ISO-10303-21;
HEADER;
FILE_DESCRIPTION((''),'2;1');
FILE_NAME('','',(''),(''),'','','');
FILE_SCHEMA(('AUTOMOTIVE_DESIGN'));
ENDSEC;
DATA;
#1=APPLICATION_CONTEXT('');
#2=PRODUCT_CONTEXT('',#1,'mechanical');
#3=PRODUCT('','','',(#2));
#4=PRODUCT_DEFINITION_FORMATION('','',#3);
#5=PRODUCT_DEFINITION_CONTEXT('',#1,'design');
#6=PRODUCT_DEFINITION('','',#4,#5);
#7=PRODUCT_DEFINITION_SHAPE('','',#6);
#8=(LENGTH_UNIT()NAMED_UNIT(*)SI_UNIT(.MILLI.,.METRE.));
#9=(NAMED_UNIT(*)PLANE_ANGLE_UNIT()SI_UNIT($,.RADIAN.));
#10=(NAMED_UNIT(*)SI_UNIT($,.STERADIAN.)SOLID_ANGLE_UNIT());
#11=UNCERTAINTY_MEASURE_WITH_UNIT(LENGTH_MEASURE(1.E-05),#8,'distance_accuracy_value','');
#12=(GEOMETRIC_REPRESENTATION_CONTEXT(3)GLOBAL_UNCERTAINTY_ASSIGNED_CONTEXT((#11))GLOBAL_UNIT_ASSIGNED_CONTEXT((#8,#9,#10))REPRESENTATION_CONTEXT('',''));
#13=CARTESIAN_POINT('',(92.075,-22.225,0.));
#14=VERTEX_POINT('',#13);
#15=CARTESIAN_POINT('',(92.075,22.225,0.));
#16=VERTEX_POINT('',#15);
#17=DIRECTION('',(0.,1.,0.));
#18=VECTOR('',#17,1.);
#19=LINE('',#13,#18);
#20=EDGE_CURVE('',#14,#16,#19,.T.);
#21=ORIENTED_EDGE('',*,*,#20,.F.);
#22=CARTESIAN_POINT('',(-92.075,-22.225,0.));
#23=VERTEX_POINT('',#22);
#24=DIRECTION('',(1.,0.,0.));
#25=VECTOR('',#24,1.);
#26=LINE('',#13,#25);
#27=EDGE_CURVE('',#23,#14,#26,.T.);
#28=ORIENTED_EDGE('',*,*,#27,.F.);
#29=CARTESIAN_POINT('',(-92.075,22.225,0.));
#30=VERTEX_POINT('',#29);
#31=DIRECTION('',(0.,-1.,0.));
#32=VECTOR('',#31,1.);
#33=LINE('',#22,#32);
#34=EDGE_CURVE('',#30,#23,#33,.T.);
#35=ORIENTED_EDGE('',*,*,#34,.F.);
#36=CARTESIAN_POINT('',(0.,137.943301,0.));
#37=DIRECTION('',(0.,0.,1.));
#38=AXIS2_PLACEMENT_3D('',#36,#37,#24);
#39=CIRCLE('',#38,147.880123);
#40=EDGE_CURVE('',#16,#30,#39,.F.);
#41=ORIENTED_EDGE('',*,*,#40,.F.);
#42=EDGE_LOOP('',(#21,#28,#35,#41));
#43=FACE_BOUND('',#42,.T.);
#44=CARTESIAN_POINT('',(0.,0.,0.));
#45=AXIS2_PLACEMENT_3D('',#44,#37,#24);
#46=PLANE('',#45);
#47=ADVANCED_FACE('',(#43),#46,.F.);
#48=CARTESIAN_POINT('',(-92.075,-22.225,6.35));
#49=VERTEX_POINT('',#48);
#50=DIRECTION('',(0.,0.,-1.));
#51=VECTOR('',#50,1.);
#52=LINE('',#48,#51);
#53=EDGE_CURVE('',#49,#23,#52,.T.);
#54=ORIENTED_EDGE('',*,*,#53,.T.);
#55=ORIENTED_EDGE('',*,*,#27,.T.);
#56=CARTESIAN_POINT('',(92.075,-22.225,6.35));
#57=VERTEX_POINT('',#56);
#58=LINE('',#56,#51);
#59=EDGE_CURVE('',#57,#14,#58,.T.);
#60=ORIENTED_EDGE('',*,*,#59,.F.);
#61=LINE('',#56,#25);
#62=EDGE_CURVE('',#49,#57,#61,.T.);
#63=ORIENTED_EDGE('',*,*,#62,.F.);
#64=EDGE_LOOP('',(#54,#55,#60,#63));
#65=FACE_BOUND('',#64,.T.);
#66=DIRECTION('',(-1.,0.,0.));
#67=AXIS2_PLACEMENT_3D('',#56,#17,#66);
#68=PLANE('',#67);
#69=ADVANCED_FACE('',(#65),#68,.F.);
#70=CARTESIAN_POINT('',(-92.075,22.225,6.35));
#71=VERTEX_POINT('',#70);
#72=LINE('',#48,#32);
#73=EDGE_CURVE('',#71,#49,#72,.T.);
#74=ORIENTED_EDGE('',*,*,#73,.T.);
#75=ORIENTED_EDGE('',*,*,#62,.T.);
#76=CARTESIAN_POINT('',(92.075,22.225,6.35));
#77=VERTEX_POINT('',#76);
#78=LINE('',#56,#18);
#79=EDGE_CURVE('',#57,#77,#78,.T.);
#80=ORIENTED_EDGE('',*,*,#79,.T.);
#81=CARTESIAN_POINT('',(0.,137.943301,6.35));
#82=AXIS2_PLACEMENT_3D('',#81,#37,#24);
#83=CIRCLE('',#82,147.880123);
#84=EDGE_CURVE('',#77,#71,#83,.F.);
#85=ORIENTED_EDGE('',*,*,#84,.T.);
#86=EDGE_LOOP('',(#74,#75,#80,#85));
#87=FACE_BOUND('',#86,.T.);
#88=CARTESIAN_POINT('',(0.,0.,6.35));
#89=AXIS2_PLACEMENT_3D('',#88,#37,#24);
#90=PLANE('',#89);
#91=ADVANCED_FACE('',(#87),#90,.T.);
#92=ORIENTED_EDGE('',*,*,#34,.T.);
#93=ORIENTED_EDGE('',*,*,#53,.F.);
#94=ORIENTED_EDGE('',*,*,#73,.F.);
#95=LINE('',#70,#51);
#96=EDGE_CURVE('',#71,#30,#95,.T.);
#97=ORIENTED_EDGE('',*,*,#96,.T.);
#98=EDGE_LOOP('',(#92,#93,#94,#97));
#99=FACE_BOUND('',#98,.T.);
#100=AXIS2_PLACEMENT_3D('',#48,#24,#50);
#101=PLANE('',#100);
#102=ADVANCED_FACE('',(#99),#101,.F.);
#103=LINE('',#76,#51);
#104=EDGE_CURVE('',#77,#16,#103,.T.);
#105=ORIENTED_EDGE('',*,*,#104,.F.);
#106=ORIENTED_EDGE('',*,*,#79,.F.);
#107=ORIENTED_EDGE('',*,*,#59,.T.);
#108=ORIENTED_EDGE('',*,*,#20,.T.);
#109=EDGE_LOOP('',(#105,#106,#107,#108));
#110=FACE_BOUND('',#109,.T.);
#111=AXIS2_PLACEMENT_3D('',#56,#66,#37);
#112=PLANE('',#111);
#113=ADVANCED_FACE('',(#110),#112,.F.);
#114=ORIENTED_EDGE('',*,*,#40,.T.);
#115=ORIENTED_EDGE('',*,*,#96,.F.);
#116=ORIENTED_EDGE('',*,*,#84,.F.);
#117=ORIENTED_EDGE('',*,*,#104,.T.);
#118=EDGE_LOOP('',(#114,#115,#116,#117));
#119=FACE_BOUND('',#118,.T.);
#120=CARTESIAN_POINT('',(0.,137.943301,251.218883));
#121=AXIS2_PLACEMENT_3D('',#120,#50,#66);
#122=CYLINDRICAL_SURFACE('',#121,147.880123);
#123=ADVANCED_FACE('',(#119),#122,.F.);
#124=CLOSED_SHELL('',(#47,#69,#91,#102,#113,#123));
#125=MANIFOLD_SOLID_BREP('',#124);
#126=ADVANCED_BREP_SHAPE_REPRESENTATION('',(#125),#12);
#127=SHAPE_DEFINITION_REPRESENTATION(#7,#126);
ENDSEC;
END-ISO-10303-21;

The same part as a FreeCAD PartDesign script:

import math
import FreeCAD as App
import Part
import Sketcher
Q = App.Units.Quantity


def add_polygon(sketch, points):
    """Adds a closed chain of lines whose ends are joined by coincident constraints."""
    first, n = sketch.GeometryCount, len(points)
    for a, b in zip(points, points[1:] + points[:1]):
        sketch.addGeometry(Part.LineSegment(App.Vector(*a, 0), App.Vector(*b, 0)), False)
    for i in range(n):
        sketch.addConstraint(Sketcher.Constraint("Coincident", first + i, 2, first + (i + 1) % n, 1))

doc = App.newDocument("Part")
params = doc.addObject("Spreadsheet::Sheet", "Params")
for row, (alias, value) in enumerate([
    ("sketch1_width", "7.25 in"),
    ("sketch1_height", "1.75 in"),
    ("pad1_length", "0.25 in"),
], start=1):
    params.set(f"A{row}", alias)
    params.set(f"B{row}", "=" + value)
    params.setAlias(f"B{row}", alias)

body = doc.addObject("PartDesign::Body", "Body")

# Sketch on XY plane
sketch1 = body.newObject("Sketcher::SketchObject", "Sketch")
sketch1.AttachmentSupport = (doc.getObject("XY_Plane"), [""])
sketch1.MapMode = "FlatFace"
add_polygon(sketch1, [(-92.075, 22.225), (-92.075, -22.225), (92.075, -22.225), (92.075, 22.225)])  # lines 0-3
sketch1.addConstraint(Sketcher.Constraint("Vertical", 0))
sketch1.addConstraint(Sketcher.Constraint("Horizontal", 1))
sketch1.addConstraint(Sketcher.Constraint("Vertical", 2))
sketch1.addConstraint(Sketcher.Constraint("Horizontal", 3))
sketch1.addConstraint(Sketcher.Constraint("Symmetric", 0, 2, 2, 2, -1, 1))
sketch1.addConstraint(Sketcher.Constraint("DistanceX", 1, 1, 1, 2, Q("7.25 in")))
sketch1.addConstraint(Sketcher.Constraint("DistanceY", 0, 2, 0, 1, Q("1.75 in")))
sketch1.setExpression("Constraints[9]", "Params.sketch1_width")
sketch1.setExpression("Constraints[10]", "Params.sketch1_height")
pad1 = body.newObject("PartDesign::Pad", "Pad")
pad1.Profile = sketch1
pad1.setExpression("Length", "Params.pad1_length")

# Sketch on XY plane
sketch2 = body.newObject("Sketcher::SketchObject", "Sketch001")
sketch2.AttachmentSupport = (doc.getObject("XY_Plane"), [""])
sketch2.MapMode = "FlatFace"
sketch2.AttachmentOffset = App.Placement(App.Vector(0, 0, 0.25 * 25.4), App.Rotation())
sketch2.addGeometry(Part.LineSegment(App.Vector(-396.377117, 264.352797, 0), App.Vector(-92.075, 22.225, 0)), False)
sketch2.addGeometry(Part.ArcOfCircle(Part.Circle(App.Vector(0, 137.943301, 0), App.Vector(0, 0, 1), 147.880123), math.radians(-128.508644), math.radians(-51.491356)), False)
sketch2.addGeometry(Part.LineSegment(App.Vector(92.075, 22.225, 0), App.Vector(396.377117, 264.352797, 0)), False)
sketch2.addGeometry(Part.LineSegment(App.Vector(396.377117, 264.352797, 0), App.Vector(396.377117, 1042.107639, 0)), False)
sketch2.addGeometry(Part.LineSegment(App.Vector(396.377117, 1042.107639, 0), App.Vector(-396.377117, 1042.107639, 0)), False)
sketch2.addGeometry(Part.LineSegment(App.Vector(-396.377117, 1042.107639, 0), App.Vector(-396.377117, 264.352797, 0)), False)
sketch2.addConstraint(Sketcher.Constraint("Tangent", 0, 2, 1, 1))
sketch2.addConstraint(Sketcher.Constraint("Tangent", 1, 2, 2, 1))
sketch2.addConstraint(Sketcher.Constraint("Coincident", 2, 2, 3, 1))
sketch2.addConstraint(Sketcher.Constraint("Coincident", 3, 2, 4, 1))
sketch2.addConstraint(Sketcher.Constraint("Coincident", 4, 2, 5, 1))
sketch2.addConstraint(Sketcher.Constraint("Coincident", 5, 2, 0, 1))
sketch2.addConstraint(Sketcher.Constraint("Vertical", 3))
sketch2.addConstraint(Sketcher.Constraint("Horizontal", 4))
sketch2.addConstraint(Sketcher.Constraint("Vertical", 5))
sketch2.addConstraint(Sketcher.Constraint("Symmetric", 2, 2, 5, 2, -2))
sketch2.addConstraint(Sketcher.Constraint("PointOnObject", 1, 3, -2))
sketch2.addConstraint(Sketcher.Constraint("DistanceX", 0, 2, 1, 2, Q("7.25 in")))
sketch2.addConstraint(Sketcher.Constraint("DistanceY", -1, 1, 0, 2, Q("0.875 in")))
sketch2.addConstraint(Sketcher.Constraint("Radius", 1, 147.880123))
sketch2.addConstraint(Sketcher.Constraint("DistanceY", 3, 1, 3, 2, 777.754842))
sketch2.addConstraint(Sketcher.Constraint("Distance", 0, 388.877421))
pocket1 = body.newObject("PartDesign::Pocket", "Pocket")
pocket1.Profile = sketch2
pocket1.Type = "ThroughAll"
pocket1.Midplane = True

doc.recompute()
